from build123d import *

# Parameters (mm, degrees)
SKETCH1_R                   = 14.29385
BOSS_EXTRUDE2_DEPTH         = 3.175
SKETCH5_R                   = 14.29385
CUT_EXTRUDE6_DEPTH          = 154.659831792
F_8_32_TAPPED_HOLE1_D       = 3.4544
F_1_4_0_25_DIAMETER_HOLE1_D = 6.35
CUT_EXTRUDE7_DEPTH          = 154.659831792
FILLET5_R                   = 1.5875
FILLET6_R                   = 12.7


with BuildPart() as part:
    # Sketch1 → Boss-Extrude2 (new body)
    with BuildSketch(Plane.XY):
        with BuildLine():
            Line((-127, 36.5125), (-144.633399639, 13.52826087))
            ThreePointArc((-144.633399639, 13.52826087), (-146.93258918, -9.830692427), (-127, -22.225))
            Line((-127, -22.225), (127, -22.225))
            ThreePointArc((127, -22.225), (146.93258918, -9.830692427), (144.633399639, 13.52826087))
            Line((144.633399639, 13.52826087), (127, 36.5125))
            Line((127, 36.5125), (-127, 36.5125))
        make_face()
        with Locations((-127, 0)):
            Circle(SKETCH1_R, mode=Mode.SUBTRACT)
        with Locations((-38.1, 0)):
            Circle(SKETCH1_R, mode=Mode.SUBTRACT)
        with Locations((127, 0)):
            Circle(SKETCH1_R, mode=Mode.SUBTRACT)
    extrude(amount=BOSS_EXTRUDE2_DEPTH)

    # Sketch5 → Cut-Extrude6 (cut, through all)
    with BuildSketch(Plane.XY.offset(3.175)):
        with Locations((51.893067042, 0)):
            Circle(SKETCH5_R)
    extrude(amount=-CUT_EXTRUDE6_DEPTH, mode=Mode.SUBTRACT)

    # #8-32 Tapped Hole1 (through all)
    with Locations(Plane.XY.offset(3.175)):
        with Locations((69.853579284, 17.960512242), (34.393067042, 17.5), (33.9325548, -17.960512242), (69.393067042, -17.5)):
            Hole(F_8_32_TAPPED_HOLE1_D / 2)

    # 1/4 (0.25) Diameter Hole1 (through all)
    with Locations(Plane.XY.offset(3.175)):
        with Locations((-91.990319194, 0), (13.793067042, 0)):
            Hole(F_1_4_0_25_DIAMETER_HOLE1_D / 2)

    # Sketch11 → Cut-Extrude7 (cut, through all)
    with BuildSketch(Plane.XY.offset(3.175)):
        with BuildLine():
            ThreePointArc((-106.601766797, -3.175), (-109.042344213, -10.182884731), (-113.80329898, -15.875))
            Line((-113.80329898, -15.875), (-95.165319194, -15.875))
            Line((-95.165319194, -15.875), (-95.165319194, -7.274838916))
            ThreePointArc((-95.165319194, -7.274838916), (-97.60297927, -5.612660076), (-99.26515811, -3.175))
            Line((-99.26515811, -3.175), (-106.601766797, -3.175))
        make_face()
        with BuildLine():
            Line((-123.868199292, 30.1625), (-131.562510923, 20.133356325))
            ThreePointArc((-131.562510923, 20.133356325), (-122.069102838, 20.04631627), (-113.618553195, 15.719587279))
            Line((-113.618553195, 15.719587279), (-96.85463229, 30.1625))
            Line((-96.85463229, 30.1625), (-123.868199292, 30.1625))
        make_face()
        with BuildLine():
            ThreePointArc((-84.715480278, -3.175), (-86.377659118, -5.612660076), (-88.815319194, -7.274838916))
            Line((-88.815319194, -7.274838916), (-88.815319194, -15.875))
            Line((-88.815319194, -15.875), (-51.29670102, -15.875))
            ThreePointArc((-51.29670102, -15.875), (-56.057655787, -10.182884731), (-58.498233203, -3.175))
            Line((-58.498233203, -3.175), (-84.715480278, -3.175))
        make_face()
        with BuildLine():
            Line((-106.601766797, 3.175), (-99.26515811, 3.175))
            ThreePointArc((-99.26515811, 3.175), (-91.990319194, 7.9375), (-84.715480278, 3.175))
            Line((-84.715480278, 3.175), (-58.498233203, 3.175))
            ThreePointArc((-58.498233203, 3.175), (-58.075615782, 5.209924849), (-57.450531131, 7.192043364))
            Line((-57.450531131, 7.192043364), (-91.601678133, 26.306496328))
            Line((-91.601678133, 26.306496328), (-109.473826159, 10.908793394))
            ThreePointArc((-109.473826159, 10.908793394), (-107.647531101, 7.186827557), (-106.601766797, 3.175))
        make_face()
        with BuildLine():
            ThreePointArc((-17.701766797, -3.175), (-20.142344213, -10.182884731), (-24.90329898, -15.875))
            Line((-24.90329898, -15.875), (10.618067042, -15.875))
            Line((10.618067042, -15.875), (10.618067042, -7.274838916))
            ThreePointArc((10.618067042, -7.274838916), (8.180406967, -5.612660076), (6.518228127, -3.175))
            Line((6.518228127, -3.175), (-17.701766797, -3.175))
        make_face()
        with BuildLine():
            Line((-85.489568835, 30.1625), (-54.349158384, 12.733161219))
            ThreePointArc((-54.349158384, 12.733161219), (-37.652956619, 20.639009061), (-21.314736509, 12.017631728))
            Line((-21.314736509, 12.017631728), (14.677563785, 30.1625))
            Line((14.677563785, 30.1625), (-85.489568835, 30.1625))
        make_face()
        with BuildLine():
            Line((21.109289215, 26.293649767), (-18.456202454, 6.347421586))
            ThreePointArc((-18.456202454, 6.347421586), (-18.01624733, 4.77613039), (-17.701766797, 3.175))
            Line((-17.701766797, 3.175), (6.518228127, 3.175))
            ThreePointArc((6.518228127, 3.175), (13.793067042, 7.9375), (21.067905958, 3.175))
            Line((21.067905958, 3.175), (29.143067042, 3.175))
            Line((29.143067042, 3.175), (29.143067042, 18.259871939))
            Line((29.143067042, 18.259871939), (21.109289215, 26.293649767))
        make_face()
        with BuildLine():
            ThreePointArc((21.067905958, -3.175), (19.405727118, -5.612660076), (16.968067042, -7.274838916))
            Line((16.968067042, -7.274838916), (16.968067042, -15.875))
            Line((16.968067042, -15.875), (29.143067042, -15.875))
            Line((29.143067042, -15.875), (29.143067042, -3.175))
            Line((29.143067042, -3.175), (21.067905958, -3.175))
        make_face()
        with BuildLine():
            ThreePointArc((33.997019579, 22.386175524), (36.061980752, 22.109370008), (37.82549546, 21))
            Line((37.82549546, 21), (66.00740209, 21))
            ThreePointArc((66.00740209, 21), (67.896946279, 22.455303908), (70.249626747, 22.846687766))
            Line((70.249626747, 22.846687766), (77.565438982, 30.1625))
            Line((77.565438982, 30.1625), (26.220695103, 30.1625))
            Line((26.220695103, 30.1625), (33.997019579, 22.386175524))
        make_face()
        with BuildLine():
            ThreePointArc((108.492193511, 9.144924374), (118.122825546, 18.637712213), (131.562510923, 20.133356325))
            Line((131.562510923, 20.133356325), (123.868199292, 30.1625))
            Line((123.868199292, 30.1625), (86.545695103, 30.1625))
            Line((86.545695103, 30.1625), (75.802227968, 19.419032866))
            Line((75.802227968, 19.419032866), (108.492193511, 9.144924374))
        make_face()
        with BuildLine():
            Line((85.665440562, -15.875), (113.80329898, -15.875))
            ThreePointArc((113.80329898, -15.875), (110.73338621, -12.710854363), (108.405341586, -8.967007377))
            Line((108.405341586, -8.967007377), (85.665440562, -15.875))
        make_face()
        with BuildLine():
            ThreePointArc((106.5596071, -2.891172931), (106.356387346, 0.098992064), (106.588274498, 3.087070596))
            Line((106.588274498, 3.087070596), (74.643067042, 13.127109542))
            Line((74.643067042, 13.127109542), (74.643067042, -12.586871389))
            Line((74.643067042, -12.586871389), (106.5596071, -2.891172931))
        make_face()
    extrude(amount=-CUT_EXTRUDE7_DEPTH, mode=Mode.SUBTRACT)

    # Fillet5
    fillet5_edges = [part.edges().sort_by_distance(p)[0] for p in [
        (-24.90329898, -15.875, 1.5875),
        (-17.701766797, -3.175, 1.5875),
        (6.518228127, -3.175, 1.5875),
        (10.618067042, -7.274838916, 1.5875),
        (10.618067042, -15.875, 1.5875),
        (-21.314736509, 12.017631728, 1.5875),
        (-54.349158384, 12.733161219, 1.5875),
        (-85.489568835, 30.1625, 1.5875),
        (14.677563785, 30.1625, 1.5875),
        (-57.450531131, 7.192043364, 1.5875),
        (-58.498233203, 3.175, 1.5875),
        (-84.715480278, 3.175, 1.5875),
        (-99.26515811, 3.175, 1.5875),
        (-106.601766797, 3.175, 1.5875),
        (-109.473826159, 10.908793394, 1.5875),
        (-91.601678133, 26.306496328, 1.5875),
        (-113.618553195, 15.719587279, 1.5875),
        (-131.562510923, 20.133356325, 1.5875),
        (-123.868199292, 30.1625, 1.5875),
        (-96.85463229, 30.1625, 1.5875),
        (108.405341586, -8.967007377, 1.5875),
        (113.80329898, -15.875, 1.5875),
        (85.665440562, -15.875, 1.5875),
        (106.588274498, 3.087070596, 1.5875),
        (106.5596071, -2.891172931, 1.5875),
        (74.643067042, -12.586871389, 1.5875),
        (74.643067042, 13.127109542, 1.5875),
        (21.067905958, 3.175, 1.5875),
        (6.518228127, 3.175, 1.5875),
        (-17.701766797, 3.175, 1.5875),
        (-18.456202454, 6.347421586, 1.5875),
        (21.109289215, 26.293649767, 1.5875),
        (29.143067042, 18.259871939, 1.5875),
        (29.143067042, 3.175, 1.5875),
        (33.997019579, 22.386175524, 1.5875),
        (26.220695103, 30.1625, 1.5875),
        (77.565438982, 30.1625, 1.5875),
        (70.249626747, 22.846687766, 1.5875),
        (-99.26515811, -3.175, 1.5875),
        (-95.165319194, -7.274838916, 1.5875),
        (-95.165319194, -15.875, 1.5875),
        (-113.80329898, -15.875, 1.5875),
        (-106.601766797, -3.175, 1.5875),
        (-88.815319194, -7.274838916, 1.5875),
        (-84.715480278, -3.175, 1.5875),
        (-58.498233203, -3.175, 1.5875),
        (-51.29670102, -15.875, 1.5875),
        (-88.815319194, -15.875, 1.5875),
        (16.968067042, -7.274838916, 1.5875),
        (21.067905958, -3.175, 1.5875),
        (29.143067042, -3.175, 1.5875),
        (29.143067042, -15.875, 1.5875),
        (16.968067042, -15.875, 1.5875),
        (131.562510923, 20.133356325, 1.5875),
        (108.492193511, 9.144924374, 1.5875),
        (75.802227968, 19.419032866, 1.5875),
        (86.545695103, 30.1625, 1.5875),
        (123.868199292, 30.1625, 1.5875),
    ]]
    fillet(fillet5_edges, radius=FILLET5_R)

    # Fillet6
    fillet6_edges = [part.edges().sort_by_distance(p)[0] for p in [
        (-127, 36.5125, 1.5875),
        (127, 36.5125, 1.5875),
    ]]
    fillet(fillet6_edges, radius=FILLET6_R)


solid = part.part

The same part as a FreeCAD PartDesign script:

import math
import FreeCAD as App
import Part
import Sketcher
from FreeCAD import Vector
Q = App.Units.Quantity


def edges_at(feature, points):
    """Names of the edges that pass closest to the given points."""
    edges = feature.Shape.Edges
    near = lambda p: min(range(len(edges)), key=lambda i: edges[i].distToShape(Part.Vertex(*p))[0])
    return sorted({f"Edge{near(p) + 1}" for p in points})

doc = App.newDocument("Part")
body = doc.addObject("PartDesign::Body", "Body")

# Sketch on XY plane
sketch1 = body.newObject("Sketcher::SketchObject", "Sketch")
sketch1.AttachmentSupport = (doc.getObject("XY_Plane"), [""])
sketch1.MapMode = "FlatFace"
sketch1.addGeometry(Part.LineSegment(Vector(-127, 36.5125, 0), Vector(-144.6334, 13.528261, 0)), False)
sketch1.addGeometry(Part.ArcOfCircle(Part.Circle(Vector(-127, 0, 0), Vector(0, 0, 1), 22.225), math.radians(142.50475), math.radians(270)), False)
sketch1.addGeometry(Part.LineSegment(Vector(-127, -22.225, 0), Vector(127, -22.225, 0)), False)
sketch1.addGeometry(Part.ArcOfCircle(Part.Circle(Vector(127, 0, 0), Vector(0, 0, 1), 22.225), math.radians(-90), math.radians(37.49525)), False)
sketch1.addGeometry(Part.LineSegment(Vector(144.6334, 13.528261, 0), Vector(127, 36.5125, 0)), False)
sketch1.addGeometry(Part.LineSegment(Vector(127, 36.5125, 0), Vector(-127, 36.5125, 0)), False)
sketch1.addGeometry(Part.Circle(Vector(-127, 0, 0), Vector(0, 0, 1), 14.29385), False)
sketch1.addGeometry(Part.Circle(Vector(-38.1, 0, 0), Vector(0, 0, 1), 14.29385), False)
sketch1.addGeometry(Part.Circle(Vector(127, 0, 0), Vector(0, 0, 1), 14.29385), False)
sketch1.addConstraint(Sketcher.Constraint("Tangent", 0, 2, 1, 1))
sketch1.addConstraint(Sketcher.Constraint("Tangent", 1, 2, 2, 1))
sketch1.addConstraint(Sketcher.Constraint("Tangent", 2, 2, 3, 1))
sketch1.addConstraint(Sketcher.Constraint("Tangent", 3, 2, 4, 1))
sketch1.addConstraint(Sketcher.Constraint("Coincident", 4, 2, 5, 1))
sketch1.addConstraint(Sketcher.Constraint("Coincident", 5, 2, 0, 1))
sketch1.addConstraint(Sketcher.Constraint("Horizontal", 2))
sketch1.addConstraint(Sketcher.Constraint("Horizontal", 5))
sketch1.addConstraint(Sketcher.Constraint("Coincident", 6, 3, 1, 3))
sketch1.addConstraint(Sketcher.Constraint("Coincident", 8, 3, 3, 3))
sketch1.addConstraint(Sketcher.Constraint("Equal", 1, 3))
sketch1.addConstraint(Sketcher.Constraint("Equal", 6, 7))
sketch1.addConstraint(Sketcher.Constraint("Equal", 7, 8))
sketch1.addConstraint(Sketcher.Constraint("Symmetric", 1, 3, 3, 3, -1, 1))
sketch1.addConstraint(Sketcher.Constraint("PointOnObject", 7, 3, -1))
sketch1.addConstraint(Sketcher.Constraint("Horizontal", 0, 2, 3, 2))
sketch1.addConstraint(Sketcher.Constraint("Vertical", 2, 2, 4, 2))
sketch1.addConstraint(Sketcher.Constraint("DistanceX", 2, 1, 2, 2, Q("10 in")))
sketch1.addConstraint(Sketcher.Constraint("Radius", 1, Q("0.875 in")))
sketch1.addConstraint(Sketcher.Constraint("Diameter", 6, Q("1.1255 in")))
sketch1.addConstraint(Sketcher.Constraint("DistanceX", 7, 3, -1, 1, Q("1.5 in")))
sketch1.addConstraint(Sketcher.Constraint("DistanceY", -1, 1, 4, 2, Q("1.4375 in")))
pad1 = body.newObject("PartDesign::Pad", "Pad")
pad1.Profile = sketch1
pad1.Length = Q("0.125 in")

# Sketch on XY plane
sketch2 = body.newObject("Sketcher::SketchObject", "Sketch001")
sketch2.AttachmentSupport = (doc.getObject("XY_Plane"), [""])
sketch2.MapMode = "FlatFace"
sketch2.AttachmentOffset = App.Placement(Vector(0, 0, 0.125 * 25.4), App.Rotation())
sketch2.addGeometry(Part.Circle(Vector(51.893067, 0, 0), Vector(0, 0, 1), 14.29385), False)
sketch2.addConstraint(Sketcher.Constraint("PointOnObject", 0, 3, -1))
sketch2.addConstraint(Sketcher.Constraint("Diameter", 0, Q("1.1255 in")))
sketch2.addConstraint(Sketcher.Constraint("DistanceX", -1, 1, 0, 3, Q("51.893067 mm")))
pocket1 = body.newObject("PartDesign::Pocket", "Pocket")
pocket1.Profile = sketch2
pocket1.Type = "ThroughAll"

# Sketch on XY plane
sketch3 = body.newObject("Sketcher::SketchObject", "Sketch002")
sketch3.AttachmentSupport = (doc.getObject("XY_Plane"), [""])
sketch3.MapMode = "FlatFace"
sketch3.AttachmentOffset = App.Placement(Vector(0, 0, 0.125 * 25.4), App.Rotation())
sketch3.addGeometry(Part.Circle(Vector(69.853579, 17.960512, 0), Vector(0, 0, 1), 1.7272), False)
sketch3.addGeometry(Part.Circle(Vector(34.393067, 17.5, 0), Vector(0, 0, 1), 1.7272), False)
sketch3.addGeometry(Part.Circle(Vector(33.932555, -17.960512, 0), Vector(0, 0, 1), 1.7272), False)
sketch3.addGeometry(Part.Circle(Vector(69.393067, -17.5, 0), Vector(0, 0, 1), 1.7272), False)
sketch3.addConstraint(Sketcher.Constraint("Equal", 0, 1))
sketch3.addConstraint(Sketcher.Constraint("Equal", 1, 2))
sketch3.addConstraint(Sketcher.Constraint("Equal", 2, 3))
sketch3.addConstraint(Sketcher.Constraint("Diameter", 0, Q("0.136 in")))
sketch3.addConstraint(Sketcher.Constraint("DistanceY", -1, 1, 1, 3, Q("17.5 mm")))
sketch3.addConstraint(Sketcher.Constraint("DistanceY", 3, 3, -1, 1, Q("17.5 mm")))
sketch3.addConstraint(Sketcher.Constraint("DistanceX", 1, 3, 3, 3, Q("35 mm")))
sketch3.addConstraint(Sketcher.Constraint("DistanceX", -1, 1, 0, 3, Q("69.853579 mm")))
sketch3.addConstraint(Sketcher.Constraint("DistanceY", -1, 1, 0, 3, Q("17.960512 mm")))
sketch3.addConstraint(Sketcher.Constraint("DistanceX", -1, 1, 1, 3, Q("34.393067 mm")))
sketch3.addConstraint(Sketcher.Constraint("DistanceX", -1, 1, 2, 3, Q("33.932555 mm")))
sketch3.addConstraint(Sketcher.Constraint("DistanceY", 2, 3, -1, 1, Q("17.960512 mm")))
doc.recompute()
hole = body.newObject("PartDesign::Hole", "Hole")
hole.Profile = sketch3
hole.ThreadType = "None"
hole.Diameter = Q("0.136 in")
hole.DepthType = "ThroughAll"

# Sketch on XY plane
sketch4 = body.newObject("Sketcher::SketchObject", "Sketch003")
sketch4.AttachmentSupport = (doc.getObject("XY_Plane"), [""])
sketch4.MapMode = "FlatFace"
sketch4.AttachmentOffset = App.Placement(Vector(0, 0, 0.125 * 25.4), App.Rotation())
sketch4.addGeometry(Part.Circle(Vector(-91.990319, 0, 0), Vector(0, 0, 1), 3.175), False)
sketch4.addGeometry(Part.Circle(Vector(13.793067, 0, 0), Vector(0, 0, 1), 3.175), False)
sketch4.addConstraint(Sketcher.Constraint("Equal", 0, 1))
sketch4.addConstraint(Sketcher.Constraint("PointOnObject", 0, 3, -1))
sketch4.addConstraint(Sketcher.Constraint("PointOnObject", 1, 3, -1))
sketch4.addConstraint(Sketcher.Constraint("Diameter", 0, Q("0.25 in")))
sketch4.addConstraint(Sketcher.Constraint("DistanceX", 0, 3, -1, 1, Q("91.990319 mm")))
sketch4.addConstraint(Sketcher.Constraint("DistanceX", -1, 1, 1, 3, Q("13.793067 mm")))
doc.recompute()
hole2 = body.newObject("PartDesign::Hole", "Hole001")
hole2.Profile = sketch4
hole2.ThreadType = "None"
hole2.Diameter = Q("0.25 in")
hole2.DepthType = "ThroughAll"

# Sketch on XY plane
sketch5 = body.newObject("Sketcher::SketchObject", "Sketch004")
sketch5.AttachmentSupport = (doc.getObject("XY_Plane"), [""])
sketch5.MapMode = "FlatFace"
sketch5.AttachmentOffset = App.Placement(Vector(0, 0, 0.125 * 25.4), App.Rotation())
sketch5.addGeometry(Part.ArcOfCircle(Part.Circle(Vector(-127, 0, 0), Vector(0, 0, 1), 20.64385), math.radians(-50.263651), math.radians(-8.847139)), False)
sketch5.addGeometry(Part.LineSegment(Vector(-113.803299, -15.875, 0), Vector(-95.165319, -15.875, 0)), False)
sketch5.addGeometry(Part.LineSegment(Vector(-95.165319, -15.875, 0), Vector(-95.165319, -7.274839, 0)), False)
sketch5.addGeometry(Part.ArcOfCircle(Part.Circle(Vector(-91.990319, 0, 0), Vector(0, 0, 1), 7.9375), math.radians(-156.421822), math.radians(-113.578178)), False)
sketch5.addGeometry(Part.LineSegment(Vector(-99.265158, -3.175, 0), Vector(-106.601767, -3.175, 0)), False)
sketch5.addGeometry(Part.LineSegment(Vector(-123.868199, 30.1625, 0), Vector(-131.562511, 20.133356, 0)), False)
sketch5.addGeometry(Part.ArcOfCircle(Part.Circle(Vector(-127, 0, 0), Vector(0, 0, 1), 20.64385), math.radians(49.593597), math.radians(102.768401)), False)
sketch5.addGeometry(Part.LineSegment(Vector(-113.618553, 15.719587, 0), Vector(-96.854632, 30.1625, 0)), False)
sketch5.addGeometry(Part.LineSegment(Vector(-96.854632, 30.1625, 0), Vector(-123.868199, 30.1625, 0)), False)
sketch5.addGeometry(Part.ArcOfCircle(Part.Circle(Vector(-91.990319, 0, 0), Vector(0, 0, 1), 7.9375), math.radians(-66.421822), math.radians(-23.578178)), False)
sketch5.addGeometry(Part.LineSegment(Vector(-88.815319, -7.274839, 0), Vector(-88.815319, -15.875, 0)), False)
sketch5.addGeometry(Part.LineSegment(Vector(-88.815319, -15.875, 0), Vector(-51.296701, -15.875, 0)), False)
sketch5.addGeometry(Part.ArcOfCircle(Part.Circle(Vector(-38.1, 0, 0), Vector(0, 0, 1), 20.64385), math.radians(-171.152861), math.radians(-129.736349)), False)
sketch5.addGeometry(Part.LineSegment(Vector(-58.498233, -3.175, 0), Vector(-84.71548, -3.175, 0)), False)
sketch5.addGeometry(Part.LineSegment(Vector(-106.601767, 3.175, 0), Vector(-99.265158, 3.175, 0)), False)
sketch5.addGeometry(Part.ArcOfCircle(Part.Circle(Vector(-91.990319, 0, 0), Vector(0, 0, 1), 7.9375), math.radians(23.578178), math.radians(156.421822)), False)
sketch5.addGeometry(Part.LineSegment(Vector(-84.71548, 3.175, 0), Vector(-58.498233, 3.175, 0)), False)
sketch5.addGeometry(Part.ArcOfCircle(Part.Circle(Vector(-38.1, 0, 0), Vector(0, 0, 1), 20.64385), math.radians(159.611328), math.radians(171.152861)), False)
sketch5.addGeometry(Part.LineSegment(Vector(-57.450531, 7.192043, 0), Vector(-91.601678, 26.306496, 0)), False)
sketch5.addGeometry(Part.LineSegment(Vector(-91.601678, 26.306496, 0), Vector(-109.473826, 10.908793, 0)), False)
sketch5.addGeometry(Part.ArcOfCircle(Part.Circle(Vector(-127, 0, 0), Vector(0, 0, 1), 20.64385), math.radians(8.847139), math.radians(31.899319)), False)
sketch5.addGeometry(Part.ArcOfCircle(Part.Circle(Vector(-38.1, 0, 0), Vector(0, 0, 1), 20.64385), math.radians(-50.263651), math.radians(-8.847139)), False)
sketch5.addGeometry(Part.LineSegment(Vector(-24.903299, -15.875, 0), Vector(10.618067, -15.875, 0)), False)
sketch5.addGeometry(Part.LineSegment(Vector(10.618067, -15.875, 0), Vector(10.618067, -7.274839, 0)), False)
sketch5.addGeometry(Part.ArcOfCircle(Part.Circle(Vector(13.793067, 0, 0), Vector(0, 0, 1), 7.9375), math.radians(-156.421822), math.radians(-113.578178)), False)
sketch5.addGeometry(Part.LineSegment(Vector(6.518228, -3.175, 0), Vector(-17.701767, -3.175, 0)), False)
sketch5.addGeometry(Part.LineSegment(Vector(-85.489569, 30.1625, 0), Vector(-54.349158, 12.733161, 0)), False)
sketch5.addGeometry(Part.ArcOfCircle(Part.Circle(Vector(-38.1, 0, 0), Vector(0, 0, 1), 20.64385), math.radians(35.601271), math.radians(141.91705)), False)
sketch5.addGeometry(Part.LineSegment(Vector(-21.314737, 12.017632, 0), Vector(14.677564, 30.1625, 0)), False)
sketch5.addGeometry(Part.LineSegment(Vector(14.677564, 30.1625, 0), Vector(-85.489569, 30.1625, 0)), False)
sketch5.addGeometry(Part.LineSegment(Vector(21.109289, 26.29365, 0), Vector(-18.456202, 6.347422, 0)), False)
sketch5.addGeometry(Part.ArcOfCircle(Part.Circle(Vector(-38.1, 0, 0), Vector(0, 0, 1), 20.64385), math.radians(8.847139), math.radians(17.906993)), False)
sketch5.addGeometry(Part.LineSegment(Vector(-17.701767, 3.175, 0), Vector(6.518228, 3.175, 0)), False)
sketch5.addGeometry(Part.ArcOfCircle(Part.Circle(Vector(13.793067, 0, 0), Vector(0, 0, 1), 7.9375), math.radians(23.578178), math.radians(156.421822)), False)
sketch5.addGeometry(Part.LineSegment(Vector(21.067906, 3.175, 0), Vector(29.143067, 3.175, 0)), False)
sketch5.addGeometry(Part.LineSegment(Vector(29.143067, 3.175, 0), Vector(29.143067, 18.259872, 0)), False)
sketch5.addGeometry(Part.LineSegment(Vector(29.143067, 18.259872, 0), Vector(21.109289, 26.29365, 0)), False)
sketch5.addGeometry(Part.ArcOfCircle(Part.Circle(Vector(13.793067, 0, 0), Vector(0, 0, 1), 7.9375), math.radians(-66.421822), math.radians(-23.578178)), False)
sketch5.addGeometry(Part.LineSegment(Vector(16.968067, -7.274839, 0), Vector(16.968067, -15.875, 0)), False)
sketch5.addGeometry(Part.LineSegment(Vector(16.968067, -15.875, 0), Vector(29.143067, -15.875, 0)), False)
sketch5.addGeometry(Part.LineSegment(Vector(29.143067, -15.875, 0), Vector(29.143067, -3.175, 0)), False)
sketch5.addGeometry(Part.LineSegment(Vector(29.143067, -3.175, 0), Vector(21.067906, -3.175, 0)), False)
sketch5.addGeometry(Part.ArcOfCircle(Part.Circle(Vector(34.393067, 17.5, 0), Vector(0, 0, 1), 4.9022), math.radians(45.558454), math.radians(94.633961)), False)
sketch5.addGeometry(Part.LineSegment(Vector(37.825495, 21, 0), Vector(66.007402, 21, 0)), False)
sketch5.addGeometry(Part.ArcOfCircle(Part.Circle(Vector(69.853579, 17.960512, 0), Vector(0, 0, 1), 4.9022), math.radians(85.366039), math.radians(141.682022)), False)
sketch5.addGeometry(Part.LineSegment(Vector(70.249627, 22.846688, 0), Vector(77.565439, 30.1625, 0)), False)
sketch5.addGeometry(Part.LineSegment(Vector(77.565439, 30.1625, 0), Vector(26.220695, 30.1625, 0)), False)
sketch5.addGeometry(Part.LineSegment(Vector(26.220695, 30.1625, 0), Vector(33.99702, 22.386176, 0)), False)
sketch5.addGeometry(Part.ArcOfCircle(Part.Circle(Vector(127, 0, 0), Vector(0, 0, 1), 20.64385), math.radians(77.231599), math.radians(153.705482)), False)
sketch5.addGeometry(Part.LineSegment(Vector(131.562511, 20.133356, 0), Vector(123.868199, 30.1625, 0)), False)
sketch5.addGeometry(Part.LineSegment(Vector(123.868199, 30.1625, 0), Vector(86.545695, 30.1625, 0)), False)
sketch5.addGeometry(Part.LineSegment(Vector(86.545695, 30.1625, 0), Vector(75.802228, 19.419033, 0)), False)
sketch5.addGeometry(Part.LineSegment(Vector(75.802228, 19.419033, 0), Vector(108.492194, 9.144924, 0)), False)
sketch5.addGeometry(Part.LineSegment(Vector(85.665441, -15.875, 0), Vector(113.803299, -15.875, 0)), False)
sketch5.addGeometry(Part.ArcOfCircle(Part.Circle(Vector(127, 0, 0), Vector(0, 0, 1), 20.64385), math.radians(-154.254977), math.radians(-129.736349)), False)
sketch5.addGeometry(Part.LineSegment(Vector(108.405342, -8.967007, 0), Vector(85.665441, -15.875, 0)), False)
sketch5.addGeometry(Part.ArcOfCircle(Part.Circle(Vector(127, 0, 0), Vector(0, 0, 1), 20.64385), math.radians(171.39976), math.radians(188.050744)), False)
sketch5.addGeometry(Part.LineSegment(Vector(106.588274, 3.087071, 0), Vector(74.643067, 13.12711, 0)), False)
sketch5.addGeometry(Part.LineSegment(Vector(74.643067, 13.12711, 0), Vector(74.643067, -12.586871, 0)), False)
sketch5.addGeometry(Part.LineSegment(Vector(74.643067, -12.586871, 0), Vector(106.559607, -2.891173, 0)), False)
sketch5.addConstraint(Sketcher.Constraint("Coincident", 0, 1, 1, 1))
sketch5.addConstraint(Sketcher.Constraint("Coincident", 1, 2, 2, 1))
sketch5.addConstraint(Sketcher.Constraint("Coincident", 2, 2, 3, 2))
sketch5.addConstraint(Sketcher.Constraint("Coincident", 3, 1, 4, 1))
sketch5.addConstraint(Sketcher.Constraint("Coincident", 4, 2, 0, 2))
sketch5.addConstraint(Sketcher.Constraint("Coincident", 5, 2, 6, 2))
sketch5.addConstraint(Sketcher.Constraint("Coincident", 6, 1, 7, 1))
sketch5.addConstraint(Sketcher.Constraint("Coincident", 7, 2, 8, 1))
sketch5.addConstraint(Sketcher.Constraint("Coincident", 8, 2, 5, 1))
sketch5.addConstraint(Sketcher.Constraint("Coincident", 9, 1, 10, 1))
sketch5.addConstraint(Sketcher.Constraint("Coincident", 10, 2, 11, 1))
sketch5.addConstraint(Sketcher.Constraint("Coincident", 11, 2, 12, 2))
sketch5.addConstraint(Sketcher.Constraint("Coincident", 12, 1, 13, 1))
sketch5.addConstraint(Sketcher.Constraint("Coincident", 13, 2, 9, 2))
sketch5.addConstraint(Sketcher.Constraint("Coincident", 14, 2, 15, 2))
sketch5.addConstraint(Sketcher.Constraint("Coincident", 15, 1, 16, 1))
sketch5.addConstraint(Sketcher.Constraint("Coincident", 16, 2, 17, 2))
sketch5.addConstraint(Sketcher.Constraint("Coincident", 17, 1, 18, 1))
sketch5.addConstraint(Sketcher.Constraint("Coincident", 18, 2, 19, 1))
sketch5.addConstraint(Sketcher.Constraint("Coincident", 19, 2, 20, 2))
sketch5.addConstraint(Sketcher.Constraint("Coincident", 20, 1, 14, 1))
sketch5.addConstraint(Sketcher.Constraint("Coincident", 21, 1, 22, 1))
sketch5.addConstraint(Sketcher.Constraint("Coincident", 22, 2, 23, 1))
sketch5.addConstraint(Sketcher.Constraint("Coincident", 23, 2, 24, 2))
sketch5.addConstraint(Sketcher.Constraint("Coincident", 24, 1, 25, 1))
sketch5.addConstraint(Sketcher.Constraint("Coincident", 25, 2, 21, 2))
sketch5.addConstraint(Sketcher.Constraint("Coincident", 26, 2, 27, 2))
sketch5.addConstraint(Sketcher.Constraint("Coincident", 27, 1, 28, 1))
sketch5.addConstraint(Sketcher.Constraint("Coincident", 28, 2, 29, 1))
sketch5.addConstraint(Sketcher.Constraint("Coincident", 29, 2, 26, 1))
sketch5.addConstraint(Sketcher.Constraint("Coincident", 30, 2, 31, 2))
sketch5.addConstraint(Sketcher.Constraint("Coincident", 31, 1, 32, 1))
sketch5.addConstraint(Sketcher.Constraint("Coincident", 32, 2, 33, 2))
sketch5.addConstraint(Sketcher.Constraint("Coincident", 33, 1, 34, 1))
sketch5.addConstraint(Sketcher.Constraint("Coincident", 34, 2, 35, 1))
sketch5.addConstraint(Sketcher.Constraint("Coincident", 35, 2, 36, 1))
sketch5.addConstraint(Sketcher.Constraint("Coincident", 36, 2, 30, 1))
sketch5.addConstraint(Sketcher.Constraint("Coincident", 37, 1, 38, 1))
sketch5.addConstraint(Sketcher.Constraint("Coincident", 38, 2, 39, 1))
sketch5.addConstraint(Sketcher.Constraint("Coincident", 39, 2, 40, 1))
sketch5.addConstraint(Sketcher.Constraint("Coincident", 40, 2, 41, 1))
sketch5.addConstraint(Sketcher.Constraint("Coincident", 41, 2, 37, 2))
sketch5.addConstraint(Sketcher.Constraint("Coincident", 42, 1, 43, 1))
sketch5.addConstraint(Sketcher.Constraint("Coincident", 43, 2, 44, 2))
sketch5.addConstraint(Sketcher.Constraint("Coincident", 44, 1, 45, 1))
sketch5.addConstraint(Sketcher.Constraint("Coincident", 45, 2, 46, 1))
sketch5.addConstraint(Sketcher.Constraint("Coincident", 46, 2, 47, 1))
sketch5.addConstraint(Sketcher.Constraint("Coincident", 47, 2, 42, 2))
sketch5.addConstraint(Sketcher.Constraint("Coincident", 48, 1, 49, 1))
sketch5.addConstraint(Sketcher.Constraint("Coincident", 49, 2, 50, 1))
sketch5.addConstraint(Sketcher.Constraint("Coincident", 50, 2, 51, 1))
sketch5.addConstraint(Sketcher.Constraint("Coincident", 51, 2, 52, 1))
sketch5.addConstraint(Sketcher.Constraint("Coincident", 52, 2, 48, 2))
sketch5.addConstraint(Sketcher.Constraint("Coincident", 53, 2, 54, 2))
sketch5.addConstraint(Sketcher.Constraint("Coincident", 54, 1, 55, 1))
sketch5.addConstraint(Sketcher.Constraint("Coincident", 55, 2, 53, 1))
sketch5.addConstraint(Sketcher.Constraint("Coincident", 56, 1, 57, 1))
sketch5.addConstraint(Sketcher.Constraint("Coincident", 57, 2, 58, 1))
sketch5.addConstraint(Sketcher.Constraint("Coincident", 58, 2, 59, 1))
sketch5.addConstraint(Sketcher.Constraint("Coincident", 59, 2, 56, 2))
sketch5.addConstraint(Sketcher.Constraint("Horizontal", 1))
sketch5.addConstraint(Sketcher.Constraint("Vertical", 2))
sketch5.addConstraint(Sketcher.Constraint("Horizontal", 4))
sketch5.addConstraint(Sketcher.Constraint("Horizontal", 8))
sketch5.addConstraint(Sketcher.Constraint("Vertical", 10))
sketch5.addConstraint(Sketcher.Constraint("Horizontal", 11))
sketch5.addConstraint(Sketcher.Constraint("Horizontal", 13))
sketch5.addConstraint(Sketcher.Constraint("Horizontal", 14))
sketch5.addConstraint(Sketcher.Constraint("Horizontal", 16))
sketch5.addConstraint(Sketcher.Constraint("Horizontal", 22))
sketch5.addConstraint(Sketcher.Constraint("Vertical", 23))
sketch5.addConstraint(Sketcher.Constraint("Horizontal", 25))
sketch5.addConstraint(Sketcher.Constraint("Horizontal", 29))
sketch5.addConstraint(Sketcher.Constraint("Horizontal", 32))
sketch5.addConstraint(Sketcher.Constraint("Horizontal", 34))
sketch5.addConstraint(Sketcher.Constraint("Vertical", 35))
sketch5.addConstraint(Sketcher.Constraint("Vertical", 38))
sketch5.addConstraint(Sketcher.Constraint("Horizontal", 39))
sketch5.addConstraint(Sketcher.Constraint("Vertical", 40))
sketch5.addConstraint(Sketcher.Constraint("Horizontal", 41))
sketch5.addConstraint(Sketcher.Constraint("Horizontal", 43))
sketch5.addConstraint(Sketcher.Constraint("Horizontal", 46))
sketch5.addConstraint(Sketcher.Constraint("Horizontal", 50))
sketch5.addConstraint(Sketcher.Constraint("Horizontal", 53))
sketch5.addConstraint(Sketcher.Constraint("Vertical", 58))
sketch5.addConstraint(Sketcher.Constraint("Coincident", 6, 3, 0, 3))
sketch5.addConstraint(Sketcher.Constraint("Coincident", 9, 3, 3, 3))
sketch5.addConstraint(Sketcher.Constraint("Coincident", 15, 3, 3, 3))
sketch5.addConstraint(Sketcher.Constraint("Coincident", 17, 3, 12, 3))
sketch5.addConstraint(Sketcher.Constraint("Coincident", 20, 3, 0, 3))
sketch5.addConstraint(Sketcher.Constraint("Coincident", 21, 3, 12, 3))
sketch5.addConstraint(Sketcher.Constraint("Coincident", 27, 3, 12, 3))
sketch5.addConstraint(Sketcher.Constraint("Coincident", 31, 3, 12, 3))
sketch5.addConstraint(Sketcher.Constraint("Coincident", 33, 3, 24, 3))
sketch5.addConstraint(Sketcher.Constraint("Coincident", 37, 3, 24, 3))
sketch5.addConstraint(Sketcher.Constraint("Coincident", 54, 3, 48, 3))
sketch5.addConstraint(Sketcher.Constraint("Coincident", 56, 3, 48, 3))
sketch5.addConstraint(Sketcher.Constraint("Equal", 0, 6))
sketch5.addConstraint(Sketcher.Constraint("Equal", 3, 9))
sketch5.addConstraint(Sketcher.Constraint("Equal", 6, 12))
sketch5.addConstraint(Sketcher.Constraint("Equal", 9, 15))
sketch5.addConstraint(Sketcher.Constraint("Equal", 12, 17))
sketch5.addConstraint(Sketcher.Constraint("Equal", 17, 20))
sketch5.addConstraint(Sketcher.Constraint("Equal", 20, 21))
sketch5.addConstraint(Sketcher.Constraint("Equal", 15, 24))
sketch5.addConstraint(Sketcher.Constraint("Equal", 21, 27))
sketch5.addConstraint(Sketcher.Constraint("Equal", 27, 31))
sketch5.addConstraint(Sketcher.Constraint("Equal", 24, 33))
sketch5.addConstraint(Sketcher.Constraint("Equal", 33, 37))
sketch5.addConstraint(Sketcher.Constraint("Equal", 42, 44))
sketch5.addConstraint(Sketcher.Constraint("Equal", 31, 48))
sketch5.addConstraint(Sketcher.Constraint("Equal", 48, 54))
sketch5.addConstraint(Sketcher.Constraint("Equal", 54, 56))
sketch5.addConstraint(Sketcher.Constraint("Symmetric", 0, 3, 48, 3, -1, 1))
sketch5.addConstraint(Sketcher.Constraint("Symmetric", 5, 2, 48, 1, -2))
sketch5.addConstraint(Sketcher.Constraint("Symmetric", 8, 2, 49, 2, -2))
sketch5.addConstraint(Sketcher.Constraint("Symmetric", 3, 1, 14, 2, -1))
sketch5.addConstraint(Sketcher.Constraint("Symmetric", 12, 1, 16, 2, -1))
sketch5.addConstraint(Sketcher.Constraint("Symmetric", 24, 1, 32, 2, -1))
sketch5.addConstraint(Sketcher.Constraint("Symmetric", 34, 2, 40, 2, -1))
sketch5.addConstraint(Sketcher.Constraint("Parallel", 7, 19))
sketch5.addConstraint(Sketcher.Constraint("Parallel", 18, 26))
sketch5.addConstraint(Sketcher.Constraint("Parallel", 28, 30))
sketch5.addConstraint(Sketcher.Constraint("Perpendicular", 36, 45))
sketch5.addConstraint(Sketcher.Constraint("Perpendicular", 45, 47))
sketch5.addConstraint(Sketcher.Constraint("Perpendicular", 47, 51))
sketch5.addConstraint(Sketcher.Constraint("Parallel", 52, 57))
sketch5.addConstraint(Sketcher.Constraint("Parallel", 55, 59))
sketch5.addConstraint(Sketcher.Constraint("Horizontal", 2, 2, 9, 1))
sketch5.addConstraint(Sketcher.Constraint("Horizontal", 1, 2, 10, 2))
sketch5.addConstraint(Sketcher.Constraint("Horizontal", 4, 2, 12, 1))
sketch5.addConstraint(Sketcher.Constraint("Horizontal", 11, 2, 21, 1))
sketch5.addConstraint(Sketcher.Constraint("Horizontal", 9, 1, 23, 2))
sketch5.addConstraint(Sketcher.Constraint("Horizontal", 13, 2, 24, 1))
sketch5.addConstraint(Sketcher.Constraint("Horizontal", 8, 2, 28, 2))
sketch5.addConstraint(Sketcher.Constraint("Horizontal", 32, 2, 33, 1))
sketch5.addConstraint(Sketcher.Constraint("Horizontal", 23, 2, 37, 1))
sketch5.addConstraint(Sketcher.Constraint("Horizontal", 22, 2, 38, 2))
sketch5.addConstraint(Sketcher.Constraint("Horizontal", 29, 2, 45, 2))
sketch5.addConstraint(Sketcher.Constraint("Horizontal", 39, 2, 53, 2))
sketch5.addConstraint(Sketcher.Constraint("DistanceY", 40, 1, 40, 2, Q("0.5 in")))
sketch5.addConstraint(Sketcher.Constraint("DistanceX", 0, 3, -1, 1, Q("5 in")))
sketch5.addConstraint(Sketcher.Constraint("Angle", 36, Q("135 deg")))
sketch5.addConstraint(Sketcher.Constraint("Radius", 3, Q("0.3125 in")))
sketch5.addConstraint(Sketcher.Constraint("Radius", 42, Q("0.193 in")))
sketch5.addConstraint(Sketcher.Constraint("DistanceX", 12, 3, -1, 1, Q("1.5 in")))
sketch5.addConstraint(Sketcher.Constraint("DistanceY", 0, 1, -1, 1, Q("0.625 in")))
sketch5.addConstraint(Sketcher.Constraint("DistanceY", -1, 1, 7, 2, Q("1.1875 in")))
sketch5.addConstraint(Sketcher.Constraint("Radius", 0, Q("20.64385 mm")))
sketch5.addConstraint(Sketcher.Constraint("DistanceX", 39, 1, 39, 2, Q("12.175 mm")))
sketch5.addConstraint(Sketcher.Constraint("DistanceX", 1, 1, 1, 2, Q("18.63798 mm")))
sketch5.addConstraint(Sketcher.Constraint("DistanceX", 4, 2, 4, 1, Q("7.336609 mm")))
sketch5.addConstraint(Sketcher.Constraint("DistanceX", 53, 1, 53, 2, Q("28.137858 mm")))
sketch5.addConstraint(Sketcher.Constraint("DistanceY", 35, 1, 35, 2, Q("15.084872 mm")))
sketch5.addConstraint(Sketcher.Constraint("DistanceY", 58, 2, 58, 1, Q("25.713981 mm")))
sketch5.addConstraint(Sketcher.Constraint("DistanceY", -1, 1, 42, 3, Q("17.5 mm")))
sketch5.addConstraint(Sketcher.Constraint("DistanceX", 8, 2, -1, 1, Q("123.868199 mm")))
sketch5.addConstraint(Sketcher.Constraint("DistanceY", -1, 1, 42, 1, Q("21 mm")))
sketch5.addConstraint(Sketcher.Constraint("Distance", 7, Q("22.127512 mm")))
sketch5.addConstraint(Sketcher.Constraint("Distance", 18, Q("39.136468 mm")))
sketch5.addConstraint(Sketcher.Constraint("Distance", 26, Q("35.68623 mm")))
sketch5.addConstraint(Sketcher.Constraint("Distance", 45, Q("10.346121 mm")))
sketch5.addConstraint(Sketcher.Constraint("Distance", 59, Q("33.35674 mm")))
sketch5.addConstraint(Sketcher.Constraint("DistanceX", 8, 2, 8, 1, Q("27.013567 mm")))
sketch5.addConstraint(Sketcher.Constraint("DistanceX", 22, 1, 22, 2, Q("35.521366 mm")))
sketch5.addConstraint(Sketcher.Constraint("DistanceX", 29, 2, 29, 1, Q("100.167133 mm")))
sketch5.addConstraint(Sketcher.Constraint("DistanceX", 43, 1, 43, 2, Q("28.181907 mm")))
sketch5.addConstraint(Sketcher.Constraint("DistanceX", 46, 2, 46, 1, Q("51.344744 mm")))
sketch5.addConstraint(Sketcher.Constraint("DistanceX", 50, 2, 50, 1, Q("37.322504 mm")))
sketch5.addConstraint(Sketcher.Constraint("DistanceX", -1, 1, 44, 3, Q("69.853579 mm")))
sketch5.addConstraint(Sketcher.Constraint("DistanceX", 5, 2, -1, 1, Q("131.562511 mm")))
sketch5.addConstraint(Sketcher.Constraint("DistanceX", 17, 1, -1, 1, Q("57.450531 mm")))
sketch5.addConstraint(Sketcher.Constraint("DistanceX", 18, 2, -1, 1, Q("91.601678 mm")))
sketch5.addConstraint(Sketcher.Constraint("DistanceY", -1, 1, 27, 1, Q("12.017632 mm")))
sketch5.addConstraint(Sketcher.Constraint("DistanceY", -1, 1, 30, 2, Q("6.347422 mm")))
sketch5.addConstraint(Sketcher.Constraint("DistanceX", -1, 1, 45, 2, Q("77.565439 mm")))
sketch5.addConstraint(Sketcher.Constraint("DistanceX", -1, 1, 54, 1, Q("108.405342 mm")))
sketch5.addConstraint(Sketcher.Constraint("DistanceY", -1, 1, 56, 1, Q("3.087071 mm")))
sketch5.addConstraint(Sketcher.Constraint("DistanceY", -1, 1, 57, 2, Q("13.12711 mm")))
sketch5.addConstraint(Sketcher.Constraint("Distance", 51, Q("15.193557 mm")))
pocket2 = body.newObject("PartDesign::Pocket", "Pocket001")
pocket2.Profile = sketch5
pocket2.Type = "ThroughAll"
doc.recompute()

fillet = body.newObject("PartDesign::Fillet", "Fillet")
fillet.Base = (pocket2, edges_at(pocket2, [
    (-24.903, -15.875, 1.587),
    (-17.702, -3.175, 1.587),
    (6.518, -3.175, 1.587),
    (10.618, -7.275, 1.587),
    (10.618, -15.875, 1.587),
    (-21.315, 12.018, 1.587),
    (-54.349, 12.733, 1.587),
    (-85.49, 30.163, 1.587),
    (14.678, 30.163, 1.587),
    (-57.451, 7.192, 1.587),
    (-58.498, 3.175, 1.587),
    (-84.715, 3.175, 1.587),
    (-99.265, 3.175, 1.587),
    (-106.602, 3.175, 1.587),
    (-109.474, 10.909, 1.587),
    (-91.602, 26.306, 1.587),
    (-113.619, 15.72, 1.587),
    (-131.563, 20.133, 1.587),
    (-123.868, 30.163, 1.587),
    (-96.855, 30.163, 1.587),
    (108.405, -8.967, 1.587),
    (113.803, -15.875, 1.587),
    (85.665, -15.875, 1.587),
    (106.588, 3.087, 1.587),
    (106.56, -2.891, 1.587),
    (74.643, -12.587, 1.587),
    (74.643, 13.127, 1.587),
    (21.068, 3.175, 1.587),
    (6.518, 3.175, 1.587),
    (-17.702, 3.175, 1.587),
    (-18.456, 6.347, 1.587),
    (21.109, 26.294, 1.587),
    (29.143, 18.26, 1.587),
    (29.143, 3.175, 1.587),
    (33.997, 22.386, 1.587),
    (26.221, 30.163, 1.587),
    (77.565, 30.163, 1.587),
    (70.25, 22.847, 1.587),
    (-99.265, -3.175, 1.587),
    (-95.165, -7.275, 1.587),
    (-95.165, -15.875, 1.587),
    (-113.803, -15.875, 1.587),
    (-106.602, -3.175, 1.587),
    (-88.815, -7.275, 1.587),
    (-84.715, -3.175, 1.587),
    (-58.498, -3.175, 1.587),
    (-51.297, -15.875, 1.587),
    (-88.815, -15.875, 1.587),
    (16.968, -7.275, 1.587),
    (21.068, -3.175, 1.587),
    (29.143, -3.175, 1.587),
    (29.143, -15.875, 1.587),
    (16.968, -15.875, 1.587),
    (131.563, 20.133, 1.587),
    (108.492, 9.145, 1.587),
    (75.802, 19.419, 1.587),
    (86.546, 30.163, 1.587),
    (123.868, 30.163, 1.587),
]))
fillet.Radius = Q("0.0625 in")
doc.recompute()

fillet2 = body.newObject("PartDesign::Fillet", "Fillet001")
fillet2.Base = (fillet, edges_at(fillet, [(-127, 36.513, 1.587), (127, 36.513, 1.587)]))
fillet2.Radius = Q("0.5 in")

doc.recompute()
